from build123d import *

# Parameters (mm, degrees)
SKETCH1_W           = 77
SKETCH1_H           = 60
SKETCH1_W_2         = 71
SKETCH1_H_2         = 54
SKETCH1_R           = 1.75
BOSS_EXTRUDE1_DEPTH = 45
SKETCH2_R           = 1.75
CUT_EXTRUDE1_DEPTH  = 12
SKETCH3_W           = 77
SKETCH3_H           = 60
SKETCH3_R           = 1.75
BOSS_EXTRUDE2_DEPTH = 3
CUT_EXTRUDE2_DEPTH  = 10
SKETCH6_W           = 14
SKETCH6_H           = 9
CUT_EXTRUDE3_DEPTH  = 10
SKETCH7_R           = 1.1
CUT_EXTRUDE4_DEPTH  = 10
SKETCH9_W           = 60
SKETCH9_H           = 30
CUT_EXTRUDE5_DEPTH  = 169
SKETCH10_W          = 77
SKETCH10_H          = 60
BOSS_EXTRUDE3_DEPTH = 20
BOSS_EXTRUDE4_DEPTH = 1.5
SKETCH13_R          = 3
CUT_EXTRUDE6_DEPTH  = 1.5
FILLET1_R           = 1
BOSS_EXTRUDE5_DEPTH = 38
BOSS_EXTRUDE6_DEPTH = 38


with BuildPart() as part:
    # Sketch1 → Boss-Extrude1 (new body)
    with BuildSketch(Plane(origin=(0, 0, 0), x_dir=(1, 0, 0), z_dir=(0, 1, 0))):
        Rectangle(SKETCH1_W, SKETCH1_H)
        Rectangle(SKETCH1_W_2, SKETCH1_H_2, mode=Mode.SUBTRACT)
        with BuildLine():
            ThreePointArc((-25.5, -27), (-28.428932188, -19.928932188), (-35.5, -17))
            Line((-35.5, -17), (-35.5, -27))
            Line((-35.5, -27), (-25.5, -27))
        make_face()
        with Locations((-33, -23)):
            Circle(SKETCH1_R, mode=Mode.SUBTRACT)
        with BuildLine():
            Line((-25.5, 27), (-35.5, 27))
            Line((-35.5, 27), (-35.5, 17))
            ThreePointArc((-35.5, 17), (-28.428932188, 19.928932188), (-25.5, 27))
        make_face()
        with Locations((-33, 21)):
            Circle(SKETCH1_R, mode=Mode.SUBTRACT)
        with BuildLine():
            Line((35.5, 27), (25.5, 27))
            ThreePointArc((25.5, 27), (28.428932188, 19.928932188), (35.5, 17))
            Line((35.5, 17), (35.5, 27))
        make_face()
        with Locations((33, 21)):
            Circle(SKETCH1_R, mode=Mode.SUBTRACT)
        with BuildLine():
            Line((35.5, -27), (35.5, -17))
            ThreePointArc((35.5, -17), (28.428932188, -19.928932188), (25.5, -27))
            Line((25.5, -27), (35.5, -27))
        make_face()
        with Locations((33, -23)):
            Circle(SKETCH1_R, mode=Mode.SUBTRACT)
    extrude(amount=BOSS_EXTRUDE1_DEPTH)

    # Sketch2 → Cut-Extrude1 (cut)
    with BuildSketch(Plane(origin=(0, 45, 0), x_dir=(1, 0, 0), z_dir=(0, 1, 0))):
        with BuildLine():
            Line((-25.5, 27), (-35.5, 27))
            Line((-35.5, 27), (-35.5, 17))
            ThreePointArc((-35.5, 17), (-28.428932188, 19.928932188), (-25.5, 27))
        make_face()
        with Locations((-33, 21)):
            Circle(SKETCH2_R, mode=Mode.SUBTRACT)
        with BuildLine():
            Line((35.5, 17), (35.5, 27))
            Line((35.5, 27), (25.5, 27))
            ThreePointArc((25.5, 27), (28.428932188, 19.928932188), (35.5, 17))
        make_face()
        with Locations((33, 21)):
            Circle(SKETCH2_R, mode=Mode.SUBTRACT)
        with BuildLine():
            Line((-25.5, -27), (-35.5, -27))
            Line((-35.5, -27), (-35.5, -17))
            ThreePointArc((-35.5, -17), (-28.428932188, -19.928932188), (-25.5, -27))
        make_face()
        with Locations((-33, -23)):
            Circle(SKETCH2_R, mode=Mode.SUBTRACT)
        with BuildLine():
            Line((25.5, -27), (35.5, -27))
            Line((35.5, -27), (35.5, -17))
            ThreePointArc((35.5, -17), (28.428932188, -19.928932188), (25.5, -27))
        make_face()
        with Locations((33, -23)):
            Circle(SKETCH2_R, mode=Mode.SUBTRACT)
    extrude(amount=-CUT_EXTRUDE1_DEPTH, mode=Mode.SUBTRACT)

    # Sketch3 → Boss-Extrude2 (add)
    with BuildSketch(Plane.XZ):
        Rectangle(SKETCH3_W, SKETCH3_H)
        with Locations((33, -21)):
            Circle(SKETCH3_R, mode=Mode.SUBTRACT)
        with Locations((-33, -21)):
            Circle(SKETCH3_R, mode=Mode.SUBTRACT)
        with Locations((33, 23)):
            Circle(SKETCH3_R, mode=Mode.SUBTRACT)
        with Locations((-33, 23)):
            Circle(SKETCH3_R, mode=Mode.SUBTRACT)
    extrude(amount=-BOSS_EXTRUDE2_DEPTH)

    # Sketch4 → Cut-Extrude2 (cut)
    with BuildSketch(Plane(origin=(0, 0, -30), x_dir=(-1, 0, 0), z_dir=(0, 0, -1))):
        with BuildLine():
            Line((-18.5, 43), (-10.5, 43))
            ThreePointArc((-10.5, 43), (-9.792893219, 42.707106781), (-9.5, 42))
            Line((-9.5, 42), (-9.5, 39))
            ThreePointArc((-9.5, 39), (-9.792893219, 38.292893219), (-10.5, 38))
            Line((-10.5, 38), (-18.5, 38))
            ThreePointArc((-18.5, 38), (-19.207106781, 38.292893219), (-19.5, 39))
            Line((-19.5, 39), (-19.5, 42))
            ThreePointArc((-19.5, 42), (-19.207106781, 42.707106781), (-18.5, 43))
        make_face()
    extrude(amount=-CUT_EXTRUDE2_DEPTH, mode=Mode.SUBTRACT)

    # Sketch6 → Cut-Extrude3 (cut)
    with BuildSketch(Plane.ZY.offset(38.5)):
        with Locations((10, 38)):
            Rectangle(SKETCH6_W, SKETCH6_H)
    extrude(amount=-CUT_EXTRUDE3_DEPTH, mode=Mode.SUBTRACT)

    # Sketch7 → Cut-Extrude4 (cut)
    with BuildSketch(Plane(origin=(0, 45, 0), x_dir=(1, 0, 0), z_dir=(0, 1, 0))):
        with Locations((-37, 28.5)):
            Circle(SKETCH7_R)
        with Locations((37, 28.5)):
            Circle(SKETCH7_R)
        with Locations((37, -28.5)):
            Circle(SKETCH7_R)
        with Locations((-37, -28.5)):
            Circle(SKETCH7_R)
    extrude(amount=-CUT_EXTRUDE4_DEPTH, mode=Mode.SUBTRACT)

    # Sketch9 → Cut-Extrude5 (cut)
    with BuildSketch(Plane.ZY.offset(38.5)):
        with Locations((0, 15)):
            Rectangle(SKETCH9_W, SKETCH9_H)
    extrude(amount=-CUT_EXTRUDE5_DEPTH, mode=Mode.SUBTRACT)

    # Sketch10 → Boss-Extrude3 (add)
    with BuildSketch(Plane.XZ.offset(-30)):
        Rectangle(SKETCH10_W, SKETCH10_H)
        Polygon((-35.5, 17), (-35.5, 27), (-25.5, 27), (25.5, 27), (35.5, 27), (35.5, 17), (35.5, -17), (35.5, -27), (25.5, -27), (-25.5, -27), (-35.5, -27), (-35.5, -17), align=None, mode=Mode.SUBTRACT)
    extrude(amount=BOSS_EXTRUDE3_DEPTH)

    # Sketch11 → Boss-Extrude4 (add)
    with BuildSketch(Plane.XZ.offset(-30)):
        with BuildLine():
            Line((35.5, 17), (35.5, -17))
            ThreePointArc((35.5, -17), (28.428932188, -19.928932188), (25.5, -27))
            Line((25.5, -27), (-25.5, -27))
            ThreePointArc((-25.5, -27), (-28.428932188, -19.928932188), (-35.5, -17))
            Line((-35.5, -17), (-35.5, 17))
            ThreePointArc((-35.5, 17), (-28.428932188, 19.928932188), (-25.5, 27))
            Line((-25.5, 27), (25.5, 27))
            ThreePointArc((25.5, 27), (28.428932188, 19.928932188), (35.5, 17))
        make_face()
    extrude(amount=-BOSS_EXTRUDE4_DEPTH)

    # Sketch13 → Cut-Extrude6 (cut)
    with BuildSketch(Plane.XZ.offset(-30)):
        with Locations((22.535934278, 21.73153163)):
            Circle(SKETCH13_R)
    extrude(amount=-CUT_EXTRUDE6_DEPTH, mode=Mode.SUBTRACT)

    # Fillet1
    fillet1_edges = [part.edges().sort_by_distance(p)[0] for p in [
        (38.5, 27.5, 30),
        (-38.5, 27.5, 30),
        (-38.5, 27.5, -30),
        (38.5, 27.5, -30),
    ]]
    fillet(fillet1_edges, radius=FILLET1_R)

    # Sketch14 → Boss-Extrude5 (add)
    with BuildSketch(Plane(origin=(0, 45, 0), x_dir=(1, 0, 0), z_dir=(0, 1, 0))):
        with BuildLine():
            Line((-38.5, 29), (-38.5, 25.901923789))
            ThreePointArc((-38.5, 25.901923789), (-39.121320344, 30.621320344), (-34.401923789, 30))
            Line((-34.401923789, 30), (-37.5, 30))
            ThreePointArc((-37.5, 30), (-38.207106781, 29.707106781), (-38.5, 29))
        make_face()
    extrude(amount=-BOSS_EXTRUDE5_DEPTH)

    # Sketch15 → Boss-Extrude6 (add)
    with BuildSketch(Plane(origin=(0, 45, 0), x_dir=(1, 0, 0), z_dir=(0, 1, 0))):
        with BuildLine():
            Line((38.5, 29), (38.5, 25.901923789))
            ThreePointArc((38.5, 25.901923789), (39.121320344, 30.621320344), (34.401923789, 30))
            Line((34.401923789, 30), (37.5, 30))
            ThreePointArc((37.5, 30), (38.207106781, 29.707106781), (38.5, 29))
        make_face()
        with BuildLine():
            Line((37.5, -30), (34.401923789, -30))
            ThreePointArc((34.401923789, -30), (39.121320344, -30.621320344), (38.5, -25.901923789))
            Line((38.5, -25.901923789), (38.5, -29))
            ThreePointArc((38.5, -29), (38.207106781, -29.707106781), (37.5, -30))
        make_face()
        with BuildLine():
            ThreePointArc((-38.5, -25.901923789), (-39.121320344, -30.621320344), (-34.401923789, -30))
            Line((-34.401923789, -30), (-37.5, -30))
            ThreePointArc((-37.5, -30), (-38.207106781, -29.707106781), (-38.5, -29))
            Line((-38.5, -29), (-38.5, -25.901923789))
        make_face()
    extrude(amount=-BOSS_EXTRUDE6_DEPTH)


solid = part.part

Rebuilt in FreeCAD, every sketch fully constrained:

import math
import FreeCAD as App
import Part
import Sketcher

V = App.Vector
Q = App.Units.Quantity


def edges_at(feature, points):
    """Names of the edges that pass closest to the given points."""
    edges = feature.Shape.Edges
    near = lambda p: min(range(len(edges)), key=lambda i: edges[i].distToShape(Part.Vertex(*p))[0])
    return sorted({f"Edge{near(p) + 1}" for p in points})


def add_polygon(sketch, points):
    """Adds a closed chain of lines whose ends are joined by coincident constraints."""
    first, n = sketch.GeometryCount, len(points)
    for a, b in zip(points, points[1:] + points[:1]):
        sketch.addGeometry(Part.LineSegment(App.Vector(*a, 0), App.Vector(*b, 0)), False)
    for i in range(n):
        sketch.addConstraint(Sketcher.Constraint("Coincident", first + i, 2, first + (i + 1) % n, 1))

doc = App.newDocument("Part")
body = doc.addObject("PartDesign::Body", "Body")

sketch1 = doc.addObject("Sketcher::SketchObject", "Sketch")
body.addObject(sketch1)
sketch1.AttachmentSupport = (doc.XZ_Plane, [""])
sketch1.MapMode = "FlatFace"
add_polygon(sketch1, [(-38.5, -30), (-38.5, 30), (38.5, 30), (38.5, -30)])
sketch1.addGeometry(Part.Circle(V(-33, 23, 0), V(0, 0, 1), 1.75), False)
sketch1.addGeometry(Part.Circle(V(33, 23, 0), V(0, 0, 1), 1.75), False)
sketch1.addGeometry(Part.Circle(V(-33, -21, 0), V(0, 0, 1), 1.75), False)
sketch1.addGeometry(Part.LineSegment(V(25.5, 27, 0), V(-25.5, 27, 0)), False)
sketch1.addGeometry(Part.ArcOfCircle(Part.Circle(V(-35.5, 27, 0), V(0, 0, 1), 10), math.radians(-90), math.radians(0)), False)
sketch1.addGeometry(Part.LineSegment(V(-35.5, 17, 0), V(-35.5, -17, 0)), False)
sketch1.addGeometry(Part.ArcOfCircle(Part.Circle(V(-35.5, -27, 0), V(0, 0, 1), 10), math.radians(0), math.radians(90)), False)
sketch1.addGeometry(Part.LineSegment(V(-25.5, -27, 0), V(25.5, -27, 0)), False)
sketch1.addGeometry(Part.ArcOfCircle(Part.Circle(V(35.5, -27, 0), V(0, 0, 1), 10), math.radians(90), math.radians(180)), False)
sketch1.addGeometry(Part.LineSegment(V(35.5, -17, 0), V(35.5, 17, 0)), False)
sketch1.addGeometry(Part.ArcOfCircle(Part.Circle(V(35.5, 27, 0), V(0, 0, 1), 10), math.radians(180), math.radians(270)), False)
sketch1.addGeometry(Part.Circle(V(33, -21, 0), V(0, 0, 1), 1.75), False)
sketch1.addConstraint([
    Sketcher.Constraint("Coincident", 7, 2, 8, 2),
    Sketcher.Constraint("Coincident", 8, 1, 9, 1),
    Sketcher.Constraint("Coincident", 9, 2, 10, 2),
    Sketcher.Constraint("Coincident", 10, 1, 11, 1),
    Sketcher.Constraint("Coincident", 11, 2, 12, 2),
    Sketcher.Constraint("Coincident", 12, 1, 13, 1),
    Sketcher.Constraint("Coincident", 13, 2, 14, 2),
    Sketcher.Constraint("Coincident", 14, 1, 7, 1),
    Sketcher.Constraint("Vertical", 0),
    Sketcher.Constraint("Horizontal", 1),
    Sketcher.Constraint("Vertical", 2),
    Sketcher.Constraint("Horizontal", 3),
    Sketcher.Constraint("Horizontal", 7),
    Sketcher.Constraint("Vertical", 9),
    Sketcher.Constraint("Horizontal", 11),
    Sketcher.Constraint("Vertical", 13),
    Sketcher.Constraint("Equal", 4, 5),
    Sketcher.Constraint("Equal", 5, 6),
    Sketcher.Constraint("Equal", 8, 10),
    Sketcher.Constraint("Equal", 10, 12),
    Sketcher.Constraint("Equal", 12, 14),
    Sketcher.Constraint("Equal", 6, 15),
    Sketcher.Constraint("Symmetric", 8, 3, 12, 3, -1, 1),
    Sketcher.Constraint("Symmetric", 10, 3, 14, 3, -1, 1),
    Sketcher.Constraint("Symmetric", 0, 2, 2, 2, -1, 1),
    Sketcher.Constraint("Symmetric", 4, 3, 5, 3, -2),
    Sketcher.Constraint("Symmetric", 10, 3, 12, 3, -2),
    Sketcher.Constraint("Symmetric", 6, 3, 15, 3, -2),
    Sketcher.Constraint("Horizontal", 14, 3, 7, 2),
    Sketcher.Constraint("Horizontal", 12, 3, 10, 1),
    Sketcher.Constraint("Vertical", 4, 3, 6, 3),
    Sketcher.Constraint("Vertical", 10, 3, 8, 1),
    Sketcher.Constraint("Vertical", 14, 3, 12, 1),
    Sketcher.Constraint("Radius", 8, Q("10 mm")),
    Sketcher.Constraint("Diameter", 4, Q("3.5 mm")),
    Sketcher.Constraint("DistanceX", 1, 1, 1, 2, Q("77 mm")),
    Sketcher.Constraint("DistanceX", 7, 2, 7, 1, Q("51 mm")),
    Sketcher.Constraint("DistanceY", 0, 1, 0, 2, Q("60 mm")),
    Sketcher.Constraint("DistanceY", 9, 2, 9, 1, Q("34 mm")),
    Sketcher.Constraint("DistanceX", 4, 3, -1, 1, Q("33 mm")),
    Sketcher.Constraint("DistanceY", -1, 1, 4, 3, Q("23 mm")),
    Sketcher.Constraint("DistanceY", 6, 3, -1, 1, Q("21 mm")),
])
pad1 = doc.addObject("PartDesign::Pad", "Pad")
body.addObject(pad1)
pad1.Profile = sketch1
pad1.Length = 45
pad1.Reversed = True

sketch2 = doc.addObject("Sketcher::SketchObject", "Sketch001")
body.addObject(sketch2)
sketch2.AttachmentSupport = (doc.XZ_Plane, [""])
sketch2.MapMode = "FlatFace"
sketch2.AttachmentOffset = App.Placement(V(0, 0, -45), App.Rotation())
sketch2.addGeometry([
    Part.LineSegment(V(-25.5, -27, 0), V(-35.5, -27, 0)),
    Part.LineSegment(V(-35.5, -27, 0), V(-35.5, -17, 0)),
    Part.ArcOfCircle(Part.Circle(V(-35.5, -27, 0), V(0, 0, 1), 10), math.radians(0), math.radians(90)),
    Part.Circle(V(-33, -21, 0), V(0, 0, 1), 1.75),
    Part.LineSegment(V(35.5, -17, 0), V(35.5, -27, 0)),
    Part.LineSegment(V(35.5, -27, 0), V(25.5, -27, 0)),
    Part.ArcOfCircle(Part.Circle(V(35.5, -27, 0), V(0, 0, 1), 10), math.radians(90), math.radians(180)),
    Part.Circle(V(33, -21, 0), V(0, 0, 1), 1.75),
    Part.LineSegment(V(-35.5, 27, 0), V(-25.5, 27, 0)),
    Part.ArcOfCircle(Part.Circle(V(-35.5, 27, 0), V(0, 0, 1), 10), math.radians(-90), math.radians(0)),
    Part.LineSegment(V(-35.5, 17, 0), V(-35.5, 27, 0)),
    Part.Circle(V(-33, 23, 0), V(0, 0, 1), 1.75),
    Part.LineSegment(V(25.5, 27, 0), V(35.5, 27, 0)),
    Part.LineSegment(V(35.5, 27, 0), V(35.5, 17, 0)),
    Part.ArcOfCircle(Part.Circle(V(35.5, 27, 0), V(0, 0, 1), 10), math.radians(180), math.radians(270)),
    Part.Circle(V(33, 23, 0), V(0, 0, 1), 1.75),
], False)
sketch2.addConstraint([
    Sketcher.Constraint("Coincident", 0, 2, 1, 1),
    Sketcher.Constraint("Coincident", 1, 2, 2, 2),
    Sketcher.Constraint("Coincident", 2, 1, 0, 1),
    Sketcher.Constraint("Coincident", 4, 2, 5, 1),
    Sketcher.Constraint("Coincident", 5, 2, 6, 2),
    Sketcher.Constraint("Coincident", 6, 1, 4, 1),
    Sketcher.Constraint("Coincident", 8, 2, 9, 2),
    Sketcher.Constraint("Coincident", 9, 1, 10, 1),
    Sketcher.Constraint("Coincident", 10, 2, 8, 1),
    Sketcher.Constraint("Coincident", 12, 2, 13, 1),
    Sketcher.Constraint("Coincident", 13, 2, 14, 2),
    Sketcher.Constraint("Coincident", 14, 1, 12, 1),
    Sketcher.Constraint("Horizontal", 0),
    Sketcher.Constraint("Vertical", 1),
    Sketcher.Constraint("Vertical", 4),
    Sketcher.Constraint("Horizontal", 5),
    Sketcher.Constraint("Horizontal", 8),
    Sketcher.Constraint("Vertical", 10),
    Sketcher.Constraint("Horizontal", 12),
    Sketcher.Constraint("Vertical", 13),
    Sketcher.Constraint("Coincident", 0, 2, 2, 3),
    Sketcher.Constraint("Coincident", 4, 2, 6, 3),
    Sketcher.Constraint("Coincident", 10, 2, 9, 3),
    Sketcher.Constraint("Coincident", 12, 2, 14, 3),
    Sketcher.Constraint("Equal", 2, 6),
    Sketcher.Constraint("Equal", 3, 7),
    Sketcher.Constraint("Equal", 6, 9),
    Sketcher.Constraint("Equal", 7, 11),
    Sketcher.Constraint("Equal", 9, 14),
    Sketcher.Constraint("Equal", 11, 15),
    Sketcher.Constraint("Symmetric", 6, 3, 9, 3, -1, 1),
    Sketcher.Constraint("Symmetric", 2, 3, 14, 3, -1, 1),
    Sketcher.Constraint("Symmetric", 2, 3, 6, 3, -2),
    Sketcher.Constraint("Symmetric", 3, 3, 7, 3, -2),
    Sketcher.Constraint("Symmetric", 11, 3, 15, 3, -2),
    Sketcher.Constraint("Vertical", 3, 3, 11, 3),
    Sketcher.Constraint("Radius", 2, Q("10 mm")),
    Sketcher.Constraint("Diameter", 3, Q("3.5 mm")),
    Sketcher.Constraint("DistanceY", 2, 3, -1, 1, Q("27 mm")),
    Sketcher.Constraint("DistanceX", 3, 3, -1, 1, Q("33 mm")),
    Sketcher.Constraint("DistanceY", 3, 3, -1, 1, Q("21 mm")),
    Sketcher.Constraint("DistanceY", -1, 1, 11, 3, Q("23 mm")),
    Sketcher.Constraint("DistanceX", 2, 3, 6, 3, Q("71 mm")),
])
pocket1 = doc.addObject("PartDesign::Pocket", "Pocket")
body.addObject(pocket1)
pocket1.Profile = sketch2
pocket1.Length = 12
pocket1.Reversed = True

sketch3 = doc.addObject("Sketcher::SketchObject", "Sketch002")
body.addObject(sketch3)
sketch3.AttachmentSupport = (doc.XZ_Plane, [""])
sketch3.MapMode = "FlatFace"
add_polygon(sketch3, [(-38.5, 30), (-38.5, -30), (38.5, -30), (38.5, 30)])
sketch3.addGeometry(Part.Circle(V(-33, -21, 0), V(0, 0, 1), 1.75), False)
sketch3.addGeometry(Part.Circle(V(33, -21, 0), V(0, 0, 1), 1.75), False)
sketch3.addGeometry(Part.Circle(V(-33, 23, 0), V(0, 0, 1), 1.75), False)
sketch3.addGeometry(Part.Circle(V(33, 23, 0), V(0, 0, 1), 1.75), False)
sketch3.addConstraint([
    Sketcher.Constraint("Vertical", 0),
    Sketcher.Constraint("Horizontal", 1),
    Sketcher.Constraint("Vertical", 2),
    Sketcher.Constraint("Horizontal", 3),
    Sketcher.Constraint("Equal", 4, 5),
    Sketcher.Constraint("Equal", 5, 6),
    Sketcher.Constraint("Equal", 6, 7),
    Sketcher.Constraint("Symmetric", 0, 2, 2, 2, -1, 1),
    Sketcher.Constraint("Symmetric", 4, 3, 5, 3, -2),
    Sketcher.Constraint("Symmetric", 6, 3, 7, 3, -2),
    Sketcher.Constraint("Vertical", 4, 3, 6, 3),
    Sketcher.Constraint("Diameter", 4, Q("3.5 mm")),
    Sketcher.Constraint("DistanceX", 1, 1, 1, 2, Q("77 mm")),
    Sketcher.Constraint("DistanceY", 0, 2, 0, 1, Q("60 mm")),
    Sketcher.Constraint("DistanceX", 4, 3, -1, 1, Q("33 mm")),
    Sketcher.Constraint("DistanceY", 4, 3, -1, 1, Q("21 mm")),
    Sketcher.Constraint("DistanceY", -1, 1, 6, 3, Q("23 mm")),
])
pad2 = doc.addObject("PartDesign::Pad", "Pad001")
body.addObject(pad2)
pad2.Profile = sketch3
pad2.Length = 3
pad2.Reversed = True

sketch4 = doc.addObject("Sketcher::SketchObject", "Sketch003")
body.addObject(sketch4)
sketch4.AttachmentSupport = (doc.XY_Plane, [""])
sketch4.MapMode = "FlatFace"
sketch4.AttachmentOffset = App.Placement(V(0, 0, -30), App.Rotation())
sketch4.addGeometry([
    Part.LineSegment(V(10.5, 43, 0), V(18.5, 43, 0)),
    Part.ArcOfCircle(Part.Circle(V(18.5, 42, 0), V(0, 0, 1), 1), math.radians(0), math.radians(90)),
    Part.LineSegment(V(19.5, 42, 0), V(19.5, 39, 0)),
    Part.ArcOfCircle(Part.Circle(V(18.5, 39, 0), V(0, 0, 1), 1), math.radians(-90), math.radians(0)),
    Part.LineSegment(V(18.5, 38, 0), V(10.5, 38, 0)),
    Part.ArcOfCircle(Part.Circle(V(10.5, 39, 0), V(0, 0, 1), 1), math.radians(-180), math.radians(-90)),
    Part.LineSegment(V(9.5, 39, 0), V(9.5, 42, 0)),
    Part.ArcOfCircle(Part.Circle(V(10.5, 42, 0), V(0, 0, 1), 1), math.radians(90), math.radians(180)),
], False)
sketch4.addConstraint([
    Sketcher.Constraint("Tangent", 0, 2, 1, 2),
    Sketcher.Constraint("Tangent", 1, 1, 2, 1),
    Sketcher.Constraint("Tangent", 2, 2, 3, 2),
    Sketcher.Constraint("Tangent", 3, 1, 4, 1),
    Sketcher.Constraint("Tangent", 4, 2, 5, 2),
    Sketcher.Constraint("Tangent", 5, 1, 6, 1),
    Sketcher.Constraint("Tangent", 6, 2, 7, 2),
    Sketcher.Constraint("Tangent", 7, 1, 0, 1),
    Sketcher.Constraint("Horizontal", 0),
    Sketcher.Constraint("Vertical", 2),
    Sketcher.Constraint("Horizontal", 4),
    Sketcher.Constraint("Vertical", 6),
    Sketcher.Constraint("Equal", 1, 3),
    Sketcher.Constraint("Equal", 3, 5),
    Sketcher.Constraint("Equal", 5, 7),
    Sketcher.Constraint("Radius", 1, Q("1 mm")),
    Sketcher.Constraint("DistanceX", 0, 1, 0, 2, Q("8 mm")),
    Sketcher.Constraint("DistanceY", 2, 2, 2, 1, Q("3 mm")),
    Sketcher.Constraint("DistanceY", -1, 1, 1, 3, Q("42 mm")),
    Sketcher.Constraint("DistanceX", -1, 1, 1, 3, Q("18.5 mm")),
])
pocket2 = doc.addObject("PartDesign::Pocket", "Pocket001")
body.addObject(pocket2)
pocket2.Profile = sketch4
pocket2.Length = 10
pocket2.Reversed = True

sketch5 = doc.addObject("Sketcher::SketchObject", "Sketch004")
body.addObject(sketch5)
sketch5.AttachmentSupport = (doc.YZ_Plane, [""])
sketch5.MapMode = "FlatFace"
sketch5.AttachmentOffset = App.Placement(V(0, 0, -38.5), App.Rotation())
add_polygon(sketch5, [(42.5, 3), (33.5, 3), (33.5, 17), (42.5, 17)])
sketch5.addConstraint([
    Sketcher.Constraint("Horizontal", 0),
    Sketcher.Constraint("Vertical", 1),
    Sketcher.Constraint("Horizontal", 2),
    Sketcher.Constraint("Vertical", 3),
    Sketcher.Constraint("DistanceX", 0, 2, 0, 1, Q("9 mm")),
    Sketcher.Constraint("DistanceY", 1, 1, 1, 2, Q("14 mm")),
    Sketcher.Constraint("DistanceY", -1, 1, 0, 2, Q("3 mm")),
    Sketcher.Constraint("DistanceX", -1, 1, 0, 2, Q("33.5 mm")),
])
pocket3 = doc.addObject("PartDesign::Pocket", "Pocket002")
body.addObject(pocket3)
pocket3.Profile = sketch5
pocket3.Length = 10
pocket3.Reversed = True

sketch6 = doc.addObject("Sketcher::SketchObject", "Sketch005")
body.addObject(sketch6)
sketch6.AttachmentSupport = (doc.XZ_Plane, [""])
sketch6.MapMode = "FlatFace"
sketch6.AttachmentOffset = App.Placement(V(0, 0, -45), App.Rotation())
sketch6.addGeometry([
    Part.Circle(V(-37, -28.5, 0), V(0, 0, 1), 1.1),
    Part.Circle(V(37, -28.5, 0), V(0, 0, 1), 1.1),
    Part.Circle(V(37, 28.5, 0), V(0, 0, 1), 1.1),
    Part.Circle(V(-37, 28.5, 0), V(0, 0, 1), 1.1),
], False)
sketch6.addConstraint([
    Sketcher.Constraint("Equal", 0, 1),
    Sketcher.Constraint("Equal", 1, 2),
    Sketcher.Constraint("Equal", 2, 3),
    Sketcher.Constraint("Symmetric", 0, 3, 2, 3, -1, 1),
    Sketcher.Constraint("Symmetric", 1, 3, 3, 3, -1, 1),
    Sketcher.Constraint("Symmetric", 0, 3, 1, 3, -2),
    Sketcher.Constraint("Diameter", 0, Q("2.2 mm")),
    Sketcher.Constraint("DistanceX", 0, 3, -1, 1, Q("37 mm")),
    Sketcher.Constraint("DistanceY", 1, 3, 2, 3, Q("57 mm")),
])
pocket4 = doc.addObject("PartDesign::Pocket", "Pocket003")
body.addObject(pocket4)
pocket4.Profile = sketch6
pocket4.Length = 10
pocket4.Reversed = True

sketch7 = doc.addObject("Sketcher::SketchObject", "Sketch006")
body.addObject(sketch7)
sketch7.AttachmentSupport = (doc.YZ_Plane, [""])
sketch7.MapMode = "FlatFace"
sketch7.AttachmentOffset = App.Placement(V(0, 0, -38.5), App.Rotation())
add_polygon(sketch7, [(30, -30), (0, -30), (0, 30), (30, 30)])
sketch7.addConstraint([
    Sketcher.Constraint("Horizontal", 0),
    Sketcher.Constraint("Vertical", 1),
    Sketcher.Constraint("Horizontal", 2),
    Sketcher.Constraint("Vertical", 3),
    Sketcher.Constraint("Symmetric", 0, 2, 1, 2, -1, 1),
    Sketcher.Constraint("DistanceX", 0, 2, 0, 1, Q("30 mm")),
    Sketcher.Constraint("DistanceY", 1, 1, 1, 2, Q("60 mm")),
])
pocket5 = doc.addObject("PartDesign::Pocket", "Pocket004")
body.addObject(pocket5)
pocket5.Profile = sketch7
pocket5.Length = 169
pocket5.Reversed = True

sketch8 = doc.addObject("Sketcher::SketchObject", "Sketch007")
body.addObject(sketch8)
sketch8.AttachmentSupport = (doc.XZ_Plane, [""])
sketch8.MapMode = "FlatFace"
sketch8.AttachmentOffset = App.Placement(V(0, 0, -30), App.Rotation())
add_polygon(sketch8, [(-38.5, 30), (-38.5, -30), (38.5, -30), (38.5, 30)])
add_polygon(sketch8, [(-35.5, -27), (-35.5, 27), (35.5, 27), (35.5, -27)])
sketch8.addConstraint([
    Sketcher.Constraint("Vertical", 0),
    Sketcher.Constraint("Horizontal", 1),
    Sketcher.Constraint("Vertical", 2),
    Sketcher.Constraint("Horizontal", 3),
    Sketcher.Constraint("Vertical", 4),
    Sketcher.Constraint("Horizontal", 5),
    Sketcher.Constraint("Vertical", 6),
    Sketcher.Constraint("Horizontal", 7),
    Sketcher.Constraint("Symmetric", 0, 2, 2, 2, -1, 1),
    Sketcher.Constraint("Symmetric", 4, 2, 6, 2, -1, 1),
    Sketcher.Constraint("DistanceX", 1, 1, 1, 2, Q("77 mm")),
    Sketcher.Constraint("DistanceX", 5, 1, 5, 2, Q("71 mm")),
    Sketcher.Constraint("DistanceY", 0, 2, 0, 1, Q("60 mm")),
    Sketcher.Constraint("DistanceY", 4, 1, 4, 2, Q("54 mm")),
])
pad3 = doc.addObject("PartDesign::Pad", "Pad002")
body.addObject(pad3)
pad3.Profile = sketch8
pad3.Length = 20

sketch9 = doc.addObject("Sketcher::SketchObject", "Sketch008")
body.addObject(sketch9)
sketch9.AttachmentSupport = (doc.XZ_Plane, [""])
sketch9.MapMode = "FlatFace"
sketch9.AttachmentOffset = App.Placement(V(0, 0, -30), App.Rotation())
sketch9.addGeometry([
    Part.LineSegment(V(35.5, -17, 0), V(35.5, 17, 0)),
    Part.ArcOfCircle(Part.Circle(V(35.5, 27, 0), V(0, 0, 1), 10), math.radians(180), math.radians(270)),
    Part.LineSegment(V(25.5, 27, 0), V(-25.5, 27, 0)),
    Part.ArcOfCircle(Part.Circle(V(-35.5, 27, 0), V(0, 0, 1), 10), math.radians(-90), math.radians(0)),
    Part.LineSegment(V(-35.5, 17, 0), V(-35.5, -17, 0)),
    Part.ArcOfCircle(Part.Circle(V(-35.5, -27, 0), V(0, 0, 1), 10), math.radians(0), math.radians(90)),
    Part.LineSegment(V(-25.5, -27, 0), V(25.5, -27, 0)),
    Part.ArcOfCircle(Part.Circle(V(35.5, -27, 0), V(0, 0, 1), 10), math.radians(90), math.radians(180)),
], False)
sketch9.addConstraint([
    Sketcher.Constraint("Coincident", 0, 2, 1, 2),
    Sketcher.Constraint("Coincident", 1, 1, 2, 1),
    Sketcher.Constraint("Coincident", 2, 2, 3, 2),
    Sketcher.Constraint("Coincident", 3, 1, 4, 1),
    Sketcher.Constraint("Coincident", 4, 2, 5, 2),
    Sketcher.Constraint("Coincident", 5, 1, 6, 1),
    Sketcher.Constraint("Coincident", 6, 2, 7, 2),
    Sketcher.Constraint("Coincident", 7, 1, 0, 1),
    Sketcher.Constraint("Vertical", 0),
    Sketcher.Constraint("Horizontal", 2),
    Sketcher.Constraint("Vertical", 4),
    Sketcher.Constraint("Horizontal", 6),
    Sketcher.Constraint("Equal", 1, 3),
    Sketcher.Constraint("Equal", 3, 5),
    Sketcher.Constraint("Equal", 5, 7),
    Sketcher.Constraint("Symmetric", 1, 3, 5, 3, -1, 1),
    Sketcher.Constraint("Symmetric", 3, 3, 7, 3, -1, 1),
    Sketcher.Constraint("Symmetric", 1, 3, 3, 3, -2),
    Sketcher.Constraint("Horizontal", 3, 3, 1, 1),
    Sketcher.Constraint("Horizontal", 7, 3, 5, 1),
    Sketcher.Constraint("Vertical", 7, 3, 0, 2),
    Sketcher.Constraint("Vertical", 5, 3, 3, 1),
    Sketcher.Constraint("Radius", 1, Q("10 mm")),
    Sketcher.Constraint("DistanceX", 2, 2, 2, 1, Q("51 mm")),
    Sketcher.Constraint("DistanceY", 0, 1, 0, 2, Q("34 mm")),
])
pad4 = doc.addObject("PartDesign::Pad", "Pad003")
body.addObject(pad4)
pad4.Profile = sketch9
pad4.Length = 1.5
pad4.Reversed = True

sketch10 = doc.addObject("Sketcher::SketchObject", "Sketch009")
body.addObject(sketch10)
sketch10.AttachmentSupport = (doc.XZ_Plane, [""])
sketch10.MapMode = "FlatFace"
sketch10.AttachmentOffset = App.Placement(V(0, 0, -30), App.Rotation())
sketch10.addGeometry(Part.Circle(V(22.535934, 21.731532, 0), V(0, 0, 1), 3), False)
sketch10.addConstraint([
    Sketcher.Constraint("Diameter", 0, Q("6 mm")),
    Sketcher.Constraint("DistanceY", -1, 1, 0, 3, Q("21.731532 mm")),
    Sketcher.Constraint("DistanceX", -1, 1, 0, 3, Q("22.535934 mm")),
])
pocket6 = doc.addObject("PartDesign::Pocket", "Pocket005")
body.addObject(pocket6)
pocket6.Profile = sketch10
pocket6.Length = 1.5
doc.recompute()

fillet = doc.addObject("PartDesign::Fillet", "Fillet")
body.addObject(fillet)
fillet.Base = (pocket6, edges_at(pocket6, [
    (38.5, 27.5, 30),
    (-38.5, 27.5, 30),
    (-38.5, 27.5, -30),
    (38.5, 27.5, -30),
]))
fillet.Radius = 1

sketch11 = doc.addObject("Sketcher::SketchObject", "Sketch010")
body.addObject(sketch11)
sketch11.AttachmentSupport = (doc.XZ_Plane, [""])
sketch11.MapMode = "FlatFace"
sketch11.AttachmentOffset = App.Placement(V(0, 0, -45), App.Rotation())
sketch11.addGeometry([
    Part.LineSegment(V(-38.5, -25.901924, 0), V(-38.5, -29, 0)),
    Part.ArcOfCircle(Part.Circle(V(-37.5, -29, 0), V(0, 0, 1), 1), math.radians(-180), math.radians(-90)),
    Part.LineSegment(V(-37.5, -30, 0), V(-34.401924, -30, 0)),
    Part.ArcOfCircle(Part.Circle(V(-37, -28.5, 0), V(0, 0, 1), 3), math.radians(120), math.radians(330)),
], False)
sketch11.addConstraint([
    Sketcher.Constraint("Tangent", 0, 2, 1, 1),
    Sketcher.Constraint("Tangent", 1, 2, 2, 1),
    Sketcher.Constraint("Coincident", 2, 2, 3, 2),
    Sketcher.Constraint("Coincident", 3, 1, 0, 1),
    Sketcher.Constraint("Vertical", 0),
    Sketcher.Constraint("Horizontal", 2),
    Sketcher.Constraint("Equal", 2, 0),
    Sketcher.Constraint("Radius", 1, Q("1 mm")),
    Sketcher.Constraint("Radius", 3, Q("3 mm")),
    Sketcher.Constraint("DistanceY", 1, 3, -1, 1, Q("29 mm")),
    Sketcher.Constraint("DistanceX", 3, 3, -1, 1, Q("37 mm")),
    Sketcher.Constraint("DistanceX", 1, 3, -1, 1, Q("37.5 mm")),
])
pad5 = doc.addObject("PartDesign::Pad", "Pad004")
body.addObject(pad5)
pad5.Profile = sketch11
pad5.Length = 38

sketch12 = doc.addObject("Sketcher::SketchObject", "Sketch011")
body.addObject(sketch12)
sketch12.AttachmentSupport = (doc.XZ_Plane, [""])
sketch12.MapMode = "FlatFace"
sketch12.AttachmentOffset = App.Placement(V(0, 0, -45), App.Rotation())
sketch12.addGeometry([
    Part.LineSegment(V(38.5, -29, 0), V(38.5, -25.901924, 0)),
    Part.ArcOfCircle(Part.Circle(V(37, -28.5, 0), V(0, 0, 1), 3), math.radians(-150), math.radians(60)),
    Part.LineSegment(V(34.401924, -30, 0), V(37.5, -30, 0)),
    Part.ArcOfCircle(Part.Circle(V(37.5, -29, 0), V(0, 0, 1), 1), math.radians(-90), math.radians(0)),
    Part.LineSegment(V(37.5, 30, 0), V(34.401924, 30, 0)),
    Part.ArcOfCircle(Part.Circle(V(37, 28.5, 0), V(0, 0, 1), 3), math.radians(-60), math.radians(150)),
    Part.LineSegment(V(38.5, 25.901924, 0), V(38.5, 29, 0)),
    Part.ArcOfCircle(Part.Circle(V(37.5, 29, 0), V(0, 0, 1), 1), math.radians(0), math.radians(90)),
    Part.ArcOfCircle(Part.Circle(V(-37, 28.5, 0), V(0, 0, 1), 3), math.radians(30), math.radians(240)),
    Part.LineSegment(V(-34.401924, 30, 0), V(-37.5, 30, 0)),
    Part.ArcOfCircle(Part.Circle(V(-37.5, 29, 0), V(0, 0, 1), 1), math.radians(90), math.radians(180)),
    Part.LineSegment(V(-38.5, 29, 0), V(-38.5, 25.901924, 0)),
], False)
sketch12.addConstraint([
    Sketcher.Constraint("Coincident", 0, 2, 1, 2),
    Sketcher.Constraint("Coincident", 1, 1, 2, 1),
    Sketcher.Constraint("Tangent", 2, 2, 3, 1),
    Sketcher.Constraint("Tangent", 3, 2, 0, 1),
    Sketcher.Constraint("Coincident", 4, 2, 5, 2),
    Sketcher.Constraint("Coincident", 5, 1, 6, 1),
    Sketcher.Constraint("Tangent", 6, 2, 7, 1),
    Sketcher.Constraint("Tangent", 7, 2, 4, 1),
    Sketcher.Constraint("Coincident", 8, 1, 9, 1),
    Sketcher.Constraint("Tangent", 9, 2, 10, 1),
    Sketcher.Constraint("Tangent", 10, 2, 11, 1),
    Sketcher.Constraint("Coincident", 11, 2, 8, 2),
    Sketcher.Constraint("Vertical", 0),
    Sketcher.Constraint("Horizontal", 2),
    Sketcher.Constraint("Horizontal", 4),
    Sketcher.Constraint("Vertical", 6),
    Sketcher.Constraint("Horizontal", 9),
    Sketcher.Constraint("Vertical", 11),
    Sketcher.Constraint("Equal", 1, 5),
    Sketcher.Constraint("Equal", 3, 7),
    Sketcher.Constraint("Equal", 5, 8),
    Sketcher.Constraint("Equal", 7, 10),
    Sketcher.Constraint("Symmetric", 1, 3, 8, 3, -1, 1),
    Sketcher.Constraint("Symmetric", 3, 3, 10, 3, -1, 1),
    Sketcher.Constraint("Symmetric", 5, 3, 8, 3, -2),
    Sketcher.Constraint("Symmetric", 7, 3, 10, 3, -2),
    Sketcher.Constraint("Equal", 9, 0),
    Sketcher.Constraint("Radius", 1, Q("3 mm")),
    Sketcher.Constraint("Radius", 3, Q("1 mm")),
    Sketcher.Constraint("DistanceX", -1, 1, 1, 3, Q("37 mm")),
    Sketcher.Constraint("DistanceY", 3, 3, -1, 1, Q("29 mm")),
    Sketcher.Constraint("DistanceY", 1, 3, 5, 3, Q("57 mm")),
])
pad6 = doc.addObject("PartDesign::Pad", "Pad005")
body.addObject(pad6)
pad6.Profile = sketch12
pad6.Length = 38

doc.recompute()
